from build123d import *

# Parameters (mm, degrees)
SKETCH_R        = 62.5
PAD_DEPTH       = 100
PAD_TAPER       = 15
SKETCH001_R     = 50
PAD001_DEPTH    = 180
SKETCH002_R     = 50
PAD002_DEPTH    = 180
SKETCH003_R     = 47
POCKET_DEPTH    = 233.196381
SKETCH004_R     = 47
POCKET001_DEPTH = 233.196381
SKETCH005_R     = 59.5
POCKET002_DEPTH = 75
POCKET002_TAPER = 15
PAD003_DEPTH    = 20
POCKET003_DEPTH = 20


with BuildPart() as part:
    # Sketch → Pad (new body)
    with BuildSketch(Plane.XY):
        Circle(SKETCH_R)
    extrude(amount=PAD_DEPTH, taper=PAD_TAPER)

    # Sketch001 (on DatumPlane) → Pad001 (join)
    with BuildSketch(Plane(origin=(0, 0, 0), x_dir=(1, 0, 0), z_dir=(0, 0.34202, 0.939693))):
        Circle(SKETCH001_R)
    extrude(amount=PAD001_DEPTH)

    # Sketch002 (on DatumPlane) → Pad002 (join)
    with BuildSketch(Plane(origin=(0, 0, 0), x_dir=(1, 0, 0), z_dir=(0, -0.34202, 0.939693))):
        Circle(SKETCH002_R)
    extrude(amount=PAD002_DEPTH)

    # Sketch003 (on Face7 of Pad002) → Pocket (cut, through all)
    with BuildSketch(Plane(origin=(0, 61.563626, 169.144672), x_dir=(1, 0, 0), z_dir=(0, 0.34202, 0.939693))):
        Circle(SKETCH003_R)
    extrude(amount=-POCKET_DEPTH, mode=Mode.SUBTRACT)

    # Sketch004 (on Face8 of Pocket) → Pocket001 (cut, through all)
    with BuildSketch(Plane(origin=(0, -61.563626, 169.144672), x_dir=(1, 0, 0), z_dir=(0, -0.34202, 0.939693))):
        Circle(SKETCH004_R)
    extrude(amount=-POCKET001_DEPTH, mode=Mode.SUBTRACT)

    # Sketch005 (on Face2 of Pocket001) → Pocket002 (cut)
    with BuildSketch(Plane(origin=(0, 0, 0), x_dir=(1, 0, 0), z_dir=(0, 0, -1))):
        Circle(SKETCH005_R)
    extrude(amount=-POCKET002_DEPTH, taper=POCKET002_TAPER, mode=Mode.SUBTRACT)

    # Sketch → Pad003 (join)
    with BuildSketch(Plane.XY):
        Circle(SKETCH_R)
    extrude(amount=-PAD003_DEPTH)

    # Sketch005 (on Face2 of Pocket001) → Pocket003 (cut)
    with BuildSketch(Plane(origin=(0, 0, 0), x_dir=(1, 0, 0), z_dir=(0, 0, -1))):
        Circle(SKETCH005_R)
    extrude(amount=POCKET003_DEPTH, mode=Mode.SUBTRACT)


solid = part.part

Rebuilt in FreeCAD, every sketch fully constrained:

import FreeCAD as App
import Part
import Sketcher

V = App.Vector
Q = App.Units.Quantity

doc = App.newDocument("Part")
body = doc.addObject("PartDesign::Body", "Body")
body.AllowCompound = True

sketch1 = doc.addObject("Sketcher::SketchObject", "Sketch")
body.addObject(sketch1)
sketch1.AttachmentSupport = (doc.XY_Plane, [""])
sketch1.MapMode = "FlatFace"
sketch1.addGeometry(Part.Circle(V(0, 0, 0), V(0, 0, 1), 62.5), False)
sketch1.addConstraint([
    Sketcher.Constraint("Coincident", 0, 3, -1, 1),
    Sketcher.Constraint("Diameter", 0, Q("125 mm")),
])
pad1 = doc.addObject("PartDesign::Pad", "Pad")
body.addObject(pad1)
pad1.Profile = sketch1
pad1.Length = 100
pad1.TaperAngle = -15

sketch2 = doc.addObject("Sketcher::SketchObject", "Sketch001")
body.addObject(sketch2)
sketch2.Placement = App.Placement(V(0, 0, 0), App.Rotation(V(1, 0, 0), V(0, 0.939692711, -0.342019895), V(0, 0.342019895, 0.939692711), "ZXY"))
sketch2.addGeometry(Part.Circle(V(0, 0, 0), V(0, 0, 1), 50), False)
sketch2.addConstraint([
    Sketcher.Constraint("Coincident", 0, 3, -1, 1),
    Sketcher.Constraint("Diameter", 0, Q("100 mm")),
])
pad2 = doc.addObject("PartDesign::Pad", "Pad001")
body.addObject(pad2)
pad2.Profile = sketch2
pad2.Length = 180

sketch3 = doc.addObject("Sketcher::SketchObject", "Sketch002")
body.addObject(sketch3)
sketch3.Placement = App.Placement(V(0, 0, 0), App.Rotation(V(1, 0, 0), V(0, 0.939692711, 0.342019895), V(0, -0.342019895, 0.939692711), "ZXY"))
sketch3.addGeometry(Part.Circle(V(0, 0, 0), V(0, 0, 1), 50), False)
sketch3.addConstraint([
    Sketcher.Constraint("Coincident", 0, 3, -1, 1),
    Sketcher.Constraint("Diameter", 0, Q("100 mm")),
])
pad3 = doc.addObject("PartDesign::Pad", "Pad002")
body.addObject(pad3)
pad3.Profile = sketch3
pad3.Length = 180

sketch4 = doc.addObject("Sketcher::SketchObject", "Sketch003")
body.addObject(sketch4)
sketch4.Placement = App.Placement(V(0, 61.563626, 169.144672), App.Rotation(V(1, 0, 0), V(0, 0.939692711, -0.342019895), V(0, 0.342019895, 0.939692711), "ZXY"))
sketch4.addGeometry(Part.Circle(V(0, 0, 0), V(0, 0, 1), 47), False)
sketch4.addConstraint([
    Sketcher.Constraint("Coincident", 0, 3, -1, 1),
    Sketcher.Constraint("Diameter", 0, Q("94 mm")),
])
pocket1 = doc.addObject("PartDesign::Pocket", "Pocket")
body.addObject(pocket1)
pocket1.Profile = sketch4
pocket1.Type = "ThroughAll"

sketch5 = doc.addObject("Sketcher::SketchObject", "Sketch004")
body.addObject(sketch5)
sketch5.Placement = App.Placement(V(0, -61.563626, 169.144672), App.Rotation(V(1, 0, 0), V(0, 0.939692711, 0.342019895), V(0, -0.342019895, 0.939692711), "ZXY"))
sketch5.addGeometry(Part.Circle(V(0, 0, 0), V(0, 0, 1), 47), False)
sketch5.addConstraint([
    Sketcher.Constraint("Coincident", 0, 3, -1, 1),
    Sketcher.Constraint("Diameter", 0, Q("94 mm")),
])
pocket2 = doc.addObject("PartDesign::Pocket", "Pocket001")
body.addObject(pocket2)
pocket2.Profile = sketch5
pocket2.Type = "ThroughAll"

sketch6 = doc.addObject("Sketcher::SketchObject", "Sketch005")
body.addObject(sketch6)
sketch6.AttachmentSupport = (doc.XY_Plane, [""])
sketch6.MapMode = "FlatFace"
sketch6.addGeometry(Part.Circle(V(0, 0, 0), V(0, 0, 1), 59.5), False)
sketch6.addConstraint([
    Sketcher.Constraint("Coincident", 0, 3, -1, 1),
    Sketcher.Constraint("Diameter", 0, Q("119 mm")),
])
pocket3 = doc.addObject("PartDesign::Pocket", "Pocket002")
body.addObject(pocket3)
pocket3.Profile = sketch6
pocket3.Length = 75
pocket3.Reversed = True
pocket3.TaperAngle = -15

sketch7 = doc.addObject("Sketcher::SketchObject", "Sketch006")
body.addObject(sketch7)
sketch7.AttachmentSupport = (doc.XY_Plane, [""])
sketch7.MapMode = "FlatFace"
sketch7.addGeometry(Part.Circle(V(0, 0, 0), V(0, 0, 1), 62.5), False)
sketch7.addConstraint([
    Sketcher.Constraint("Coincident", 0, 3, -1, 1),
    Sketcher.Constraint("Diameter", 0, Q("125 mm")),
])
pad4 = doc.addObject("PartDesign::Pad", "Pad003")
body.addObject(pad4)
pad4.Profile = sketch7
pad4.Length = 20
pad4.Reversed = True

sketch8 = doc.addObject("Sketcher::SketchObject", "Sketch007")
body.addObject(sketch8)
sketch8.AttachmentSupport = (doc.XY_Plane, [""])
sketch8.MapMode = "FlatFace"
sketch8.addGeometry(Part.Circle(V(0, 0, 0), V(0, 0, 1), 59.5), False)
sketch8.addConstraint([
    Sketcher.Constraint("Coincident", 0, 3, -1, 1),
    Sketcher.Constraint("Diameter", 0, Q("119 mm")),
])
pocket4 = doc.addObject("PartDesign::Pocket", "Pocket003")
body.addObject(pocket4)
pocket4.Profile = sketch8
pocket4.Length = 20

doc.recompute()
